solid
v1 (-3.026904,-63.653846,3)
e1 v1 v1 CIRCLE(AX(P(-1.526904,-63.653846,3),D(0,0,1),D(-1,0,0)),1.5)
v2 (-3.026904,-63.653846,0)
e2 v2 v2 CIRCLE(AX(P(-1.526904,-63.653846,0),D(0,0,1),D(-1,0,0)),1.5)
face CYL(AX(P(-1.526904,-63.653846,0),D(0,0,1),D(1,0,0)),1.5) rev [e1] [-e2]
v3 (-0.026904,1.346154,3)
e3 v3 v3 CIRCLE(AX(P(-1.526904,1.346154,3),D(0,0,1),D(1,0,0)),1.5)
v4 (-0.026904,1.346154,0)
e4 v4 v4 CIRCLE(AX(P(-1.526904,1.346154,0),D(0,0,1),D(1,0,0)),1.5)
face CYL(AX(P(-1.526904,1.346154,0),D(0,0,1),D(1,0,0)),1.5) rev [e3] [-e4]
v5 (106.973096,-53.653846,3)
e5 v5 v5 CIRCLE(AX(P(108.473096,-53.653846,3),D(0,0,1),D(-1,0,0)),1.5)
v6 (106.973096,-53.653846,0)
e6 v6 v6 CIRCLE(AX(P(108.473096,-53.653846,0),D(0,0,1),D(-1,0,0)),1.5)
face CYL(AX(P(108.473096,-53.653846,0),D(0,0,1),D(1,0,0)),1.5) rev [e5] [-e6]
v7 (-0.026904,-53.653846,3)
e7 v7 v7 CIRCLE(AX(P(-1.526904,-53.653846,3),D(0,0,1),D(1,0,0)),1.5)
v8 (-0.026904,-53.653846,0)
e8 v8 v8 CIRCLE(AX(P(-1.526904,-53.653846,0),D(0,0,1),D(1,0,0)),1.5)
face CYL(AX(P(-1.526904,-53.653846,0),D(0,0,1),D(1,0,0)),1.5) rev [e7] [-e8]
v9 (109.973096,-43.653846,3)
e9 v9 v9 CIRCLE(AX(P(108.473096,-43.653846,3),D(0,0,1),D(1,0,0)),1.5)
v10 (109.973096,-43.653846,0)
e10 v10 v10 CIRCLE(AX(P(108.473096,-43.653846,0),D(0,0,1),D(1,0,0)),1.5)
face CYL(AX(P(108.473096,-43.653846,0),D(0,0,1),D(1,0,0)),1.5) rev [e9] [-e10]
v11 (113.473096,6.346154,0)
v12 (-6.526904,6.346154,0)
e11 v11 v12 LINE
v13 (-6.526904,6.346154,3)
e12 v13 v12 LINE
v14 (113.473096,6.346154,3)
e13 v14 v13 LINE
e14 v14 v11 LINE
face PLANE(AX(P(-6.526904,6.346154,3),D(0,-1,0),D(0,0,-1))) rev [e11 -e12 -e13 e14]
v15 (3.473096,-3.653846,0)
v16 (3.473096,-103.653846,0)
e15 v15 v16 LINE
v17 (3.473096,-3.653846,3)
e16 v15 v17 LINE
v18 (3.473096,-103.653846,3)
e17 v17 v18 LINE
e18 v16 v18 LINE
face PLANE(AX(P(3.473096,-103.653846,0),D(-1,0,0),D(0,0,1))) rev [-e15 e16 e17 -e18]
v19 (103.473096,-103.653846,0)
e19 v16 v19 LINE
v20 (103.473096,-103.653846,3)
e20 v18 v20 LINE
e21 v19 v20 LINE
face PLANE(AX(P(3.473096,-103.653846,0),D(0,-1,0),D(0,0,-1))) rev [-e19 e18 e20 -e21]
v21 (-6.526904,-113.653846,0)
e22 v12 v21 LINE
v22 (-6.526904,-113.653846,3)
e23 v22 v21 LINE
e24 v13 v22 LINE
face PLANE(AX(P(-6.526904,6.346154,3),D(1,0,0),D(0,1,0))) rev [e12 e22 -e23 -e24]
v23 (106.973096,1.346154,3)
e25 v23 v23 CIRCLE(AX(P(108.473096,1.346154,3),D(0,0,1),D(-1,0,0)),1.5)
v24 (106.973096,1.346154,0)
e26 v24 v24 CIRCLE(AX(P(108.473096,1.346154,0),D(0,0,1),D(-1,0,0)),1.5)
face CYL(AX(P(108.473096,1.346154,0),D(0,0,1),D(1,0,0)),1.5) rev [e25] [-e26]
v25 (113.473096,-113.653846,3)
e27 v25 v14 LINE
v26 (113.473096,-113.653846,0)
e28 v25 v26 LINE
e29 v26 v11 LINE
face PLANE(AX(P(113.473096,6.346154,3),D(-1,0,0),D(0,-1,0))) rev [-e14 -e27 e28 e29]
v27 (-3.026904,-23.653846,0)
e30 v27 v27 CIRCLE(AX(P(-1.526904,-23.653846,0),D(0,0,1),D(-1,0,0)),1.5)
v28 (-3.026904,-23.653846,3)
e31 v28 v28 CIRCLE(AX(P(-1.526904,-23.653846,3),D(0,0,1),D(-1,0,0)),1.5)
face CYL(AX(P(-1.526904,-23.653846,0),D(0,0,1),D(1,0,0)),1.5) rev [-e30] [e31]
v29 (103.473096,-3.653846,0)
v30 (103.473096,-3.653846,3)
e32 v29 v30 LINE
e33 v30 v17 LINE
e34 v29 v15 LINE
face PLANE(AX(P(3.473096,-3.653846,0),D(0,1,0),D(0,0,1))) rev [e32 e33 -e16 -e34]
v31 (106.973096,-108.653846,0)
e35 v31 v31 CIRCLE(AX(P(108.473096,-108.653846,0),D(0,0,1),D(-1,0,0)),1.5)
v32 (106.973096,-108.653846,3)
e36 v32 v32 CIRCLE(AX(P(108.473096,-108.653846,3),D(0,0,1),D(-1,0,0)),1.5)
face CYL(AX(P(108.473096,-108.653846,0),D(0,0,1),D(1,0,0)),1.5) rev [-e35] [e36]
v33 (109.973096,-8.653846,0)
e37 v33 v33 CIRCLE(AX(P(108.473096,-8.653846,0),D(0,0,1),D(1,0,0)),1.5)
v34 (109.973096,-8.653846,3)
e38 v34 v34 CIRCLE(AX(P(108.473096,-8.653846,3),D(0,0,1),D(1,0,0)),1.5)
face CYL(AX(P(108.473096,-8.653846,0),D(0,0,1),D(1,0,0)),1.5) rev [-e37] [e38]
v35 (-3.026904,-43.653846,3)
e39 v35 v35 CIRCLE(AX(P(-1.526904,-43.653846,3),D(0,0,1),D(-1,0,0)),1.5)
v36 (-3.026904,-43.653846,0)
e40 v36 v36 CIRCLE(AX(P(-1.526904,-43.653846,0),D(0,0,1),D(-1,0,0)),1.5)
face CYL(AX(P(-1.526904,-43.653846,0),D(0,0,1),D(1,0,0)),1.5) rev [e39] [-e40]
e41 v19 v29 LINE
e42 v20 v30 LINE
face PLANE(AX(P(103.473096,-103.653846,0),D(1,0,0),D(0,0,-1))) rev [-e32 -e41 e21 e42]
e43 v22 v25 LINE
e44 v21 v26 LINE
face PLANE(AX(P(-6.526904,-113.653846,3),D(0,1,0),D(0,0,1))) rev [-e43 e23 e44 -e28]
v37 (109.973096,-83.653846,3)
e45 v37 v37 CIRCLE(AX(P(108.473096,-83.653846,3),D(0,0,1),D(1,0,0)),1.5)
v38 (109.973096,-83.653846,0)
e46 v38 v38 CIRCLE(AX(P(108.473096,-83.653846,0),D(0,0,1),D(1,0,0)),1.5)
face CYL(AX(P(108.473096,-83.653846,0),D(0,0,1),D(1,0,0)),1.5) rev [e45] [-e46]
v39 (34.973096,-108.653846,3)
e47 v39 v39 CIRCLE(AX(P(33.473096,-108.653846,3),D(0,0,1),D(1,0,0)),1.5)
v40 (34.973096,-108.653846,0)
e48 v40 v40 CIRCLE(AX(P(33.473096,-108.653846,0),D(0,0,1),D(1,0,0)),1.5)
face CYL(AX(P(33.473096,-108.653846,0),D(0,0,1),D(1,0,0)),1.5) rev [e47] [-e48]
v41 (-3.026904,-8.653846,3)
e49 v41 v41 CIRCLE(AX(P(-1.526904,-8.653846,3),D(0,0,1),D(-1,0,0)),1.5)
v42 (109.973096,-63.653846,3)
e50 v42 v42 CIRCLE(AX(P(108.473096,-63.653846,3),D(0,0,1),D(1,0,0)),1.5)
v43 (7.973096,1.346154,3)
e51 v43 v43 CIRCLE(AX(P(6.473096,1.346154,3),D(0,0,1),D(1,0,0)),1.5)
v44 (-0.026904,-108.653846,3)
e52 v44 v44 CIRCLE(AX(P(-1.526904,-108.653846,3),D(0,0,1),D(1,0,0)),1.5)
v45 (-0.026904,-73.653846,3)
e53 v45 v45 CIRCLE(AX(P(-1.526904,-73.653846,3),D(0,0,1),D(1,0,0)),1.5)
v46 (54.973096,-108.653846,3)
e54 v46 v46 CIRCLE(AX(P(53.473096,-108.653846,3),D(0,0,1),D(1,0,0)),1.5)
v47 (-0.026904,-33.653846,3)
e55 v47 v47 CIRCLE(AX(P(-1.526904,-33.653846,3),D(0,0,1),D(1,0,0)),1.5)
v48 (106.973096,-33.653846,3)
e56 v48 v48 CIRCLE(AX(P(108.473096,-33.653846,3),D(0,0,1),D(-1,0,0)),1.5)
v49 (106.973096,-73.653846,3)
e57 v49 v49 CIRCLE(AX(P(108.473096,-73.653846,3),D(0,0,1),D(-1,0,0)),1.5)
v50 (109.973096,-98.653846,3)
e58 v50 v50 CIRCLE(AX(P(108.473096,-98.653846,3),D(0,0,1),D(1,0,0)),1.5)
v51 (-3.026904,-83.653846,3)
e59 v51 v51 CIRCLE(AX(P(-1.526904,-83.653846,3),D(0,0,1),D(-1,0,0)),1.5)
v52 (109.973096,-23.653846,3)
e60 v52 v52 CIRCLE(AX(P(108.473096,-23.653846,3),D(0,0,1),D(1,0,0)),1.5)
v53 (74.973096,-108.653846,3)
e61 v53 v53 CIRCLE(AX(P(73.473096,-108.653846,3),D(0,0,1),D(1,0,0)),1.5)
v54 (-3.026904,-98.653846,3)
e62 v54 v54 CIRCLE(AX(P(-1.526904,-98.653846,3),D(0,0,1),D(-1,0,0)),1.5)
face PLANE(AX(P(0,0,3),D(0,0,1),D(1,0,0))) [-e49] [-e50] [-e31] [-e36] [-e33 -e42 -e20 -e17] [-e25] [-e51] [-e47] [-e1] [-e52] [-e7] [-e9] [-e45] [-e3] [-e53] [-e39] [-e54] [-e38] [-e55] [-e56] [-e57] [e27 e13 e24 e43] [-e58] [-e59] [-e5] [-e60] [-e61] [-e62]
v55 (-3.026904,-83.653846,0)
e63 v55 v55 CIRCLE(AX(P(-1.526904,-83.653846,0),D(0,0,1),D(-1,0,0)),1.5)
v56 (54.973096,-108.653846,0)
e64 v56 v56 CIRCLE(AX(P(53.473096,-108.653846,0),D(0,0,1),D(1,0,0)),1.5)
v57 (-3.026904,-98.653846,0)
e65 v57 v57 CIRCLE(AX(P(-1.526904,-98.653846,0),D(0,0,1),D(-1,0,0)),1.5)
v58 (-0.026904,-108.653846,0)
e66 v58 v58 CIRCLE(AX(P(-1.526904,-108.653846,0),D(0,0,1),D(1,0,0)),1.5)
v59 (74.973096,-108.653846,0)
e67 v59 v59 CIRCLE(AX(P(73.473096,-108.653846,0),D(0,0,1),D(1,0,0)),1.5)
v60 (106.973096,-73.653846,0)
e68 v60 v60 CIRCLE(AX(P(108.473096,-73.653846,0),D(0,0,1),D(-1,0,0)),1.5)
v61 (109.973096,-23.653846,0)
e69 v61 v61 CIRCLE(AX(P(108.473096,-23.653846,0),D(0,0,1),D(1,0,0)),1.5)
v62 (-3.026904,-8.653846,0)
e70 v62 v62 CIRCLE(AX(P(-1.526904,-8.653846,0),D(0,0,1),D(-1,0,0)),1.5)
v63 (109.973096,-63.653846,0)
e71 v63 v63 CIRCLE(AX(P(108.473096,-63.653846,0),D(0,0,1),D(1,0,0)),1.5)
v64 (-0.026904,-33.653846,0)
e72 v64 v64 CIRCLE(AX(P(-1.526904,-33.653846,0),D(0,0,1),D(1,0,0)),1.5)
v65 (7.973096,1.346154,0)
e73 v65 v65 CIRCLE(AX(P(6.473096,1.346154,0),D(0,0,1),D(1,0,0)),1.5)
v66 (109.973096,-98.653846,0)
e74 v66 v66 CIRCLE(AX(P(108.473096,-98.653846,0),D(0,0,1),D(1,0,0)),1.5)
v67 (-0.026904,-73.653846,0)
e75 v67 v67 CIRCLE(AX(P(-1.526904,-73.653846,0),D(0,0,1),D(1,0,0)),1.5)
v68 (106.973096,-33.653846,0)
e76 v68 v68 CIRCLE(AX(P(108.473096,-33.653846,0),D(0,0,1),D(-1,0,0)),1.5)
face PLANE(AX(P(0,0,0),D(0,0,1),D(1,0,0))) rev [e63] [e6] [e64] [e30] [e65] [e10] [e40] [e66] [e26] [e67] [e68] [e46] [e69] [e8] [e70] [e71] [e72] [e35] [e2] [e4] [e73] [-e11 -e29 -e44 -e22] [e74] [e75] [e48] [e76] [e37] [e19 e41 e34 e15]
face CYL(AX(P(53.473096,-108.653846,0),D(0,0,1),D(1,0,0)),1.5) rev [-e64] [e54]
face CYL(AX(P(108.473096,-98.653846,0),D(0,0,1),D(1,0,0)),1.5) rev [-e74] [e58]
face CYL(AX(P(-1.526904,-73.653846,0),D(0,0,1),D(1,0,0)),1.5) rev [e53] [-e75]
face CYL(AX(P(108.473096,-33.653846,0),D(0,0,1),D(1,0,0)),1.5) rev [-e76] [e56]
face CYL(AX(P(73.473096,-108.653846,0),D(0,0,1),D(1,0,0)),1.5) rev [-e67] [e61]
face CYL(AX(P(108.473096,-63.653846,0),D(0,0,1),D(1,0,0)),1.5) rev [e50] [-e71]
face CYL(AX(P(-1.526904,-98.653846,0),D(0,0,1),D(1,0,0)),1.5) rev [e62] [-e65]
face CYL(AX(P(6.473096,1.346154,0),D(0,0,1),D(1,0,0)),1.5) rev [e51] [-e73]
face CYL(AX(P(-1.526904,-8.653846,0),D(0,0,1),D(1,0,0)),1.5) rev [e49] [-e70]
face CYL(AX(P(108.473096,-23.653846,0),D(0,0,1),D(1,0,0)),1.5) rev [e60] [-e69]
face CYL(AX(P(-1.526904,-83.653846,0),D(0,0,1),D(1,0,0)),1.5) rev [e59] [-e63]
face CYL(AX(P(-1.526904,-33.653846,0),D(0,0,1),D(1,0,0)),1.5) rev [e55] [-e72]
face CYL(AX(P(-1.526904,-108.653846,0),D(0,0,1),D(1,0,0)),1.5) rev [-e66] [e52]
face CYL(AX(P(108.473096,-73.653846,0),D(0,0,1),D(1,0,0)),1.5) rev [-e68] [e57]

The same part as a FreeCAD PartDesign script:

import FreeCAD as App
import Part
import Sketcher

V = App.Vector
Q = App.Units.Quantity

doc = App.newDocument("Part")
body = doc.addObject("PartDesign::Body", "Body")

sketch1 = body.newObject("Sketcher::SketchObject", "Sketch")
sketch1.AttachmentSupport = (doc.getObject("XY_Plane"), [""])
sketch1.MapMode = "FlatFace"
sketch1.addGeometry([
    Part.LineSegment(V(-6.526904, 6.346154, 0), V(-6.526904, -113.653846, 0)),
    Part.LineSegment(V(-6.526904, -113.653846, 0), V(113.473096, -113.653846, 0)),
    Part.LineSegment(V(113.473096, -113.653846, 0), V(113.473096, 6.346154, 0)),
    Part.LineSegment(V(113.473096, 6.346154, 0), V(-6.526904, 6.346154, 0)),
], False)
sketch1.addConstraint([
    Sketcher.Constraint("Coincident", 0, 2, 1, 1),
    Sketcher.Constraint("Coincident", 1, 2, 2, 1),
    Sketcher.Constraint("Coincident", 2, 2, 3, 1),
    Sketcher.Constraint("Coincident", 3, 2, 0, 1),
    Sketcher.Constraint("Vertical", 0),
    Sketcher.Constraint("Horizontal", 1),
    Sketcher.Constraint("Vertical", 2),
    Sketcher.Constraint("Horizontal", 3),
    Sketcher.Constraint("Equal", 3, 0),
    Sketcher.Constraint("DistanceX", 1, 1, 1, 2, Q("120 mm")),
    Sketcher.Constraint("DistanceX", 0, 2, -1, 1, Q("6.526904 mm")),
    Sketcher.Constraint("DistanceY", 0, 2, -1, 1, Q("113.653846 mm")),
])
pad1 = body.newObject("PartDesign::Pad", "Pad")
pad1.Profile = sketch1
pad1.Length = 3

sketch2 = body.newObject("Sketcher::SketchObject", "Sketch001")
sketch2.AttachmentSupport = (doc.getObject("XY_Plane"), [""])
sketch2.MapMode = "FlatFace"
sketch2.AttachmentOffset = App.Placement(V(0, 0, 3), App.Rotation())
sketch2.addGeometry([
    Part.LineSegment(V(3.473096, -3.653846, 0), V(3.473096, -103.653846, 0)),
    Part.LineSegment(V(3.473096, -103.653846, 0), V(103.473096, -103.653846, 0)),
    Part.LineSegment(V(103.473096, -103.653846, 0), V(103.473096, -3.653846, 0)),
    Part.LineSegment(V(103.473096, -3.653846, 0), V(3.473096, -3.653846, 0)),
], False)
sketch2.addConstraint([
    Sketcher.Constraint("Coincident", 0, 2, 1, 1),
    Sketcher.Constraint("Coincident", 1, 2, 2, 1),
    Sketcher.Constraint("Coincident", 2, 2, 3, 1),
    Sketcher.Constraint("Coincident", 3, 2, 0, 1),
    Sketcher.Constraint("Vertical", 0),
    Sketcher.Constraint("Horizontal", 1),
    Sketcher.Constraint("Vertical", 2),
    Sketcher.Constraint("Horizontal", 3),
    Sketcher.Constraint("Equal", 3, 0),
    Sketcher.Constraint("DistanceX", 1, 1, 1, 2, Q("100 mm")),
    Sketcher.Constraint("DistanceX", -1, 1, 0, 2, Q("3.473096 mm")),
    Sketcher.Constraint("DistanceY", 0, 2, -1, 1, Q("103.653846 mm")),
])
pocket1 = body.newObject("PartDesign::Pocket", "Pocket")
pocket1.Profile = sketch2
pocket1.Type = "ThroughAll"

sketch3 = body.newObject("Sketcher::SketchObject", "Sketch002")
sketch3.AttachmentSupport = (doc.getObject("XY_Plane"), [""])
sketch3.MapMode = "FlatFace"
sketch3.AttachmentOffset = App.Placement(V(0, 0, 3), App.Rotation())
sketch3.addGeometry([
    Part.Circle(V(-1.526904, 1.346154, 0), V(0, 0, 1), 1.5),
    Part.Circle(V(-1.526904, -108.653846, 0), V(0, 0, 1), 1.5),
    Part.Circle(V(-1.526904, -33.653846, 0), V(0, 0, 1), 1.5),
    Part.Circle(V(-1.526904, -53.653846, 0), V(0, 0, 1), 1.5),
    Part.Circle(V(-1.526904, -73.653846, 0), V(0, 0, 1), 1.5),
    Part.Circle(V(108.473096, -73.653846, 0), V(0, 0, 1), 1.5),
    Part.Circle(V(108.473096, -53.653846, 0), V(0, 0, 1), 1.5),
    Part.Circle(V(108.473096, -33.653846, 0), V(0, 0, 1), 1.5),
    Part.Circle(V(108.473096, -108.653846, 0), V(0, 0, 1), 1.5),
    Part.Circle(V(108.473096, 1.346154, 0), V(0, 0, 1), 1.5),
], False)
sketch3.addConstraint([
    Sketcher.Constraint("Equal", 0, 1),
    Sketcher.Constraint("Equal", 1, 2),
    Sketcher.Constraint("Equal", 2, 3),
    Sketcher.Constraint("Equal", 3, 4),
    Sketcher.Constraint("Equal", 4, 5),
    Sketcher.Constraint("Equal", 5, 6),
    Sketcher.Constraint("Equal", 6, 7),
    Sketcher.Constraint("Equal", 7, 8),
    Sketcher.Constraint("Equal", 8, 9),
    Sketcher.Constraint("Horizontal", 4, 3, 5, 3),
    Sketcher.Constraint("Horizontal", 3, 3, 6, 3),
    Sketcher.Constraint("Horizontal", 2, 3, 7, 3),
    Sketcher.Constraint("Horizontal", 1, 3, 8, 3),
    Sketcher.Constraint("Horizontal", 0, 3, 9, 3),
    Sketcher.Constraint("Vertical", 0, 3, 1, 3),
    Sketcher.Constraint("Vertical", 1, 3, 2, 3),
    Sketcher.Constraint("Vertical", 2, 3, 3, 3),
    Sketcher.Constraint("Vertical", 3, 3, 4, 3),
    Sketcher.Constraint("Vertical", 5, 3, 6, 3),
    Sketcher.Constraint("Vertical", 6, 3, 7, 3),
    Sketcher.Constraint("Vertical", 7, 3, 8, 3),
    Sketcher.Constraint("Vertical", 8, 3, 9, 3),
    Sketcher.Constraint("Diameter", 0, Q("3 mm")),
    Sketcher.Constraint("DistanceY", 1, 3, 0, 3, Q("110 mm")),
    Sketcher.Constraint("DistanceY", 2, 3, 0, 3, Q("35 mm")),
    Sketcher.Constraint("DistanceY", 3, 3, 2, 3, Q("20 mm")),
    Sketcher.Constraint("DistanceY", 4, 3, 3, 3, Q("20 mm")),
    Sketcher.Constraint("DistanceX", 4, 3, 5, 3, Q("110 mm")),
    Sketcher.Constraint("DistanceX", 0, 3, -1, 1, Q("1.526904 mm")),
    Sketcher.Constraint("DistanceY", -1, 1, 0, 3, Q("1.346154 mm")),
])
pocket2 = body.newObject("PartDesign::Pocket", "Pocket001")
pocket2.Profile = sketch3
pocket2.Type = "ThroughAll"

sketch4 = body.newObject("Sketcher::SketchObject", "Sketch003")
sketch4.AttachmentSupport = (doc.getObject("XY_Plane"), [""])
sketch4.MapMode = "FlatFace"
sketch4.AttachmentOffset = App.Placement(V(0, 0, 3), App.Rotation())
sketch4.addGeometry(Part.Circle(V(6.473096, 1.346154, 0), V(0, 0, 1), 1.5), False)
sketch4.addConstraint([
    Sketcher.Constraint("Diameter", 0, Q("3 mm")),
    Sketcher.Constraint("DistanceX", -1, 1, 0, 3, Q("6.473096 mm")),
    Sketcher.Constraint("DistanceY", -1, 1, 0, 3, Q("1.346154 mm")),
])
pocket3 = body.newObject("PartDesign::Pocket", "Pocket002")
pocket3.Profile = sketch4
pocket3.Type = "ThroughAll"

sketch5 = body.newObject("Sketcher::SketchObject", "Sketch004")
sketch5.AttachmentSupport = (doc.getObject("XY_Plane"), [""])
sketch5.MapMode = "FlatFace"
sketch5.AttachmentOffset = App.Placement(V(0, 0, 3), App.Rotation())
sketch5.addGeometry([
    Part.Circle(V(73.473096, -108.653846, 0), V(0, 0, 1), 1.5),
    Part.Circle(V(53.473096, -108.653846, 0), V(0, 0, 1), 1.5),
    Part.Circle(V(33.473096, -108.653846, 0), V(0, 0, 1), 1.5),
], False)
sketch5.addConstraint([
    Sketcher.Constraint("Equal", 0, 1),
    Sketcher.Constraint("Equal", 1, 2),
    Sketcher.Constraint("Horizontal", 0, 3, 1, 3),
    Sketcher.Constraint("Horizontal", 1, 3, 2, 3),
    Sketcher.Constraint("Diameter", 0, Q("3 mm")),
    Sketcher.Constraint("DistanceX", 1, 3, 0, 3, Q("20 mm")),
    Sketcher.Constraint("DistanceX", 2, 3, 1, 3, Q("20 mm")),
    Sketcher.Constraint("DistanceX", -1, 1, 0, 3, Q("73.473096 mm")),
    Sketcher.Constraint("DistanceY", 0, 3, -1, 1, Q("108.653846 mm")),
])
pocket4 = body.newObject("PartDesign::Pocket", "Pocket003")
pocket4.Profile = sketch5
pocket4.Type = "ThroughAll"

sketch6 = body.newObject("Sketcher::SketchObject", "Sketch005")
sketch6.AttachmentSupport = (doc.getObject("XY_Plane"), [""])
sketch6.MapMode = "FlatFace"
sketch6.AttachmentOffset = App.Placement(V(0, 0, 3), App.Rotation())
sketch6.addGeometry([
    Part.Circle(V(108.473096, -23.653846, 0), V(0, 0, 1), 1.5),
    Part.Circle(V(108.473096, -43.653846, 0), V(0, 0, 1), 1.5),
    Part.Circle(V(108.473096, -63.653846, 0), V(0, 0, 1), 1.5),
    Part.Circle(V(108.473096, -83.653846, 0), V(0, 0, 1), 1.5),
    Part.Circle(V(-1.526904, -83.653846, 0), V(0, 0, 1), 1.5),
    Part.Circle(V(-1.526904, -63.653846, 0), V(0, 0, 1), 1.5),
    Part.Circle(V(-1.526904, -43.653846, 0), V(0, 0, 1), 1.5),
    Part.Circle(V(-1.526904, -23.653846, 0), V(0, 0, 1), 1.5),
    Part.Circle(V(108.473096, -8.653846, 0), V(0, 0, 1), 1.5),
    Part.Circle(V(108.473096, -98.653846, 0), V(0, 0, 1), 1.5),
    Part.Circle(V(-1.526904, -98.653846, 0), V(0, 0, 1), 1.5),
    Part.Circle(V(-1.526904, -8.653846, 0), V(0, 0, 1), 1.5),
], False)
sketch6.addConstraint([
    Sketcher.Constraint("Equal", 0, 1),
    Sketcher.Constraint("Equal", 1, 2),
    Sketcher.Constraint("Equal", 2, 3),
    Sketcher.Constraint("Equal", 3, 4),
    Sketcher.Constraint("Equal", 4, 5),
    Sketcher.Constraint("Equal", 5, 6),
    Sketcher.Constraint("Equal", 6, 7),
    Sketcher.Constraint("Equal", 7, 8),
    Sketcher.Constraint("Equal", 8, 9),
    Sketcher.Constraint("Equal", 9, 10),
    Sketcher.Constraint("Equal", 10, 11),
    Sketcher.Constraint("Horizontal", 3, 3, 4, 3),
    Sketcher.Constraint("Horizontal", 2, 3, 5, 3),
    Sketcher.Constraint("Horizontal", 1, 3, 6, 3),
    Sketcher.Constraint("Horizontal", 0, 3, 7, 3),
    Sketcher.Constraint("Horizontal", 9, 3, 10, 3),
    Sketcher.Constraint("Horizontal", 8, 3, 11, 3),
    Sketcher.Constraint("Vertical", 0, 3, 1, 3),
    Sketcher.Constraint("Vertical", 1, 3, 2, 3),
    Sketcher.Constraint("Vertical", 2, 3, 3, 3),
    Sketcher.Constraint("Vertical", 4, 3, 5, 3),
    Sketcher.Constraint("Vertical", 5, 3, 6, 3),
    Sketcher.Constraint("Vertical", 6, 3, 7, 3),
    Sketcher.Constraint("Vertical", 3, 3, 8, 3),
    Sketcher.Constraint("Vertical", 8, 3, 9, 3),
    Sketcher.Constraint("Vertical", 7, 3, 10, 3),
    Sketcher.Constraint("Vertical", 10, 3, 11, 3),
    Sketcher.Constraint("Diameter", 0, Q("3 mm")),
    Sketcher.Constraint("DistanceY", 1, 3, 0, 3, Q("20 mm")),
    Sketcher.Constraint("DistanceY", 2, 3, 1, 3, Q("20 mm")),
    Sketcher.Constraint("DistanceY", 3, 3, 2, 3, Q("20 mm")),
    Sketcher.Constraint("DistanceX", 4, 3, 3, 3, Q("110 mm")),
    Sketcher.Constraint("DistanceY", 0, 3, 8, 3, Q("15 mm")),
    Sketcher.Constraint("DistanceY", 9, 3, 3, 3, Q("15 mm")),
    Sketcher.Constraint("DistanceX", -1, 1, 0, 3, Q("108.473096 mm")),
    Sketcher.Constraint("DistanceY", 0, 3, -1, 1, Q("23.653846 mm")),
])
pocket5 = body.newObject("PartDesign::Pocket", "Pocket004")
pocket5.Profile = sketch6
pocket5.Type = "ThroughAll"

doc.recompute()
